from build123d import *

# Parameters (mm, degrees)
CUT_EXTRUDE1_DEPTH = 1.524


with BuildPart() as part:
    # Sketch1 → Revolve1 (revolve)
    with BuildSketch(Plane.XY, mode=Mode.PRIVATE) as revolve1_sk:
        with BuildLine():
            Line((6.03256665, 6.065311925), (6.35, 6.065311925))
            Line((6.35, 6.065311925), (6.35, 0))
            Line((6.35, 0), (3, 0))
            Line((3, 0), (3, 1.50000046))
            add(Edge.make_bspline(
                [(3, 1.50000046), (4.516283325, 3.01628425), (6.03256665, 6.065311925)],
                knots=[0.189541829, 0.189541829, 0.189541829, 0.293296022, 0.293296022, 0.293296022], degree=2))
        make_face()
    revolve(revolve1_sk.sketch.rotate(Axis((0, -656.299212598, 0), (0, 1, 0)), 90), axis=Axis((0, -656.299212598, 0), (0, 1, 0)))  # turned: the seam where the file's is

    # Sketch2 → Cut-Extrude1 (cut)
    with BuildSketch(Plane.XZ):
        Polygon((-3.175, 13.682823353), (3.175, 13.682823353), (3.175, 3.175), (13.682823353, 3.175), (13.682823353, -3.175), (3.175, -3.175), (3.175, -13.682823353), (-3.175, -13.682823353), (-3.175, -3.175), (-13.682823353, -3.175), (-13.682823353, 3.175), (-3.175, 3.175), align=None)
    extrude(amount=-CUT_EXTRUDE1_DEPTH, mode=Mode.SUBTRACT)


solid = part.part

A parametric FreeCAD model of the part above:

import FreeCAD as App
import Part
import Sketcher

V = App.Vector
Q = App.Units.Quantity

doc = App.newDocument("Part")
body = doc.addObject("PartDesign::Body", "Body")

# Sketch on XY plane
sketch1 = body.newObject("Sketcher::SketchObject", "Sketch")
sketch1.AttachmentSupport = (doc.getObject("XY_Plane"), [""])
sketch1.MapMode = "FlatFace"
sketch1.addGeometry(Part.LineSegment(V(6.35, 6.065312, 0), V(6.032567, 6.065312, 0)), False)
sketch1.addGeometry(Part.BSplineCurve([V(3, 1.5, 0), V(4.516283, 3.016284, 0), V(6.032567, 6.065312, 0)], [3, 3], [0.189541829, 0.293296022], False, 2, [1, 1, 1], False), False)
sketch1.addGeometry(Part.LineSegment(V(3, 1.5, 0), V(3, 0, 0)), False)
sketch1.addGeometry(Part.LineSegment(V(3, 0, 0), V(6.35, 0, 0)), False)
sketch1.addGeometry(Part.LineSegment(V(6.35, 0, 0), V(6.35, 6.065312, 0)), False)
sketch1.addConstraint(Sketcher.Constraint("Block", 1))
sketch1.addConstraint(Sketcher.Constraint("Coincident", 0, 2, 1, 2))
sketch1.addConstraint(Sketcher.Constraint("Coincident", 1, 1, 2, 1))
sketch1.addConstraint(Sketcher.Constraint("Coincident", 2, 2, 3, 1))
sketch1.addConstraint(Sketcher.Constraint("Coincident", 3, 2, 4, 1))
sketch1.addConstraint(Sketcher.Constraint("Coincident", 4, 2, 0, 1))
sketch1.addConstraint(Sketcher.Constraint("Horizontal", 0))
sketch1.addConstraint(Sketcher.Constraint("Vertical", 2))
sketch1.addConstraint(Sketcher.Constraint("Horizontal", 3))
sketch1.addConstraint(Sketcher.Constraint("Vertical", 4))
sketch1.addConstraint(Sketcher.Constraint("PointOnObject", 2, 2, -1))
sketch1.addConstraint(Sketcher.Constraint("DistanceX", -1, 1, 3, 2, Q("0.25 in")))
revolution = body.newObject("PartDesign::Revolution", "Revolution")
revolution.Profile = sketch1
revolution.ReferenceAxis = (sketch1, ["V_Axis"])
revolution.Angle = 360

# Sketch on XZ plane
sketch2 = body.newObject("Sketcher::SketchObject", "Sketch001")
sketch2.AttachmentSupport = (doc.getObject("XZ_Plane"), [""])
sketch2.MapMode = "FlatFace"
sketch2.addGeometry(Part.LineSegment(V(3.175, 13.682823, 0), V(-3.175, 13.682823, 0)), False)
sketch2.addGeometry(Part.LineSegment(V(-3.175, 13.682823, 0), V(-3.175, 3.175, 0)), False)
sketch2.addGeometry(Part.LineSegment(V(-3.175, 3.175, 0), V(-13.682823, 3.175, 0)), False)
sketch2.addGeometry(Part.LineSegment(V(-13.682823, 3.175, 0), V(-13.682823, -3.175, 0)), False)
sketch2.addGeometry(Part.LineSegment(V(-13.682823, -3.175, 0), V(-3.175, -3.175, 0)), False)
sketch2.addGeometry(Part.LineSegment(V(-3.175, -3.175, 0), V(-3.175, -13.682823, 0)), False)
sketch2.addGeometry(Part.LineSegment(V(-3.175, -13.682823, 0), V(3.175, -13.682823, 0)), False)
sketch2.addGeometry(Part.LineSegment(V(3.175, -13.682823, 0), V(3.175, -3.175, 0)), False)
sketch2.addGeometry(Part.LineSegment(V(3.175, -3.175, 0), V(13.682823, -3.175, 0)), False)
sketch2.addGeometry(Part.LineSegment(V(13.682823, -3.175, 0), V(13.682823, 3.175, 0)), False)
sketch2.addGeometry(Part.LineSegment(V(13.682823, 3.175, 0), V(3.175, 3.175, 0)), False)
sketch2.addGeometry(Part.LineSegment(V(3.175, 3.175, 0), V(3.175, 13.682823, 0)), False)
sketch2.addConstraint(Sketcher.Constraint("Coincident", 0, 2, 1, 1))
sketch2.addConstraint(Sketcher.Constraint("Coincident", 1, 2, 2, 1))
sketch2.addConstraint(Sketcher.Constraint("Coincident", 2, 2, 3, 1))
sketch2.addConstraint(Sketcher.Constraint("Coincident", 3, 2, 4, 1))
sketch2.addConstraint(Sketcher.Constraint("Coincident", 4, 2, 5, 1))
sketch2.addConstraint(Sketcher.Constraint("Coincident", 5, 2, 6, 1))
sketch2.addConstraint(Sketcher.Constraint("Coincident", 6, 2, 7, 1))
sketch2.addConstraint(Sketcher.Constraint("Coincident", 7, 2, 8, 1))
sketch2.addConstraint(Sketcher.Constraint("Coincident", 8, 2, 9, 1))
sketch2.addConstraint(Sketcher.Constraint("Coincident", 9, 2, 10, 1))
sketch2.addConstraint(Sketcher.Constraint("Coincident", 10, 2, 11, 1))
sketch2.addConstraint(Sketcher.Constraint("Coincident", 11, 2, 0, 1))
sketch2.addConstraint(Sketcher.Constraint("Horizontal", 0))
sketch2.addConstraint(Sketcher.Constraint("Vertical", 1))
sketch2.addConstraint(Sketcher.Constraint("Horizontal", 2))
sketch2.addConstraint(Sketcher.Constraint("Vertical", 3))
sketch2.addConstraint(Sketcher.Constraint("Horizontal", 4))
sketch2.addConstraint(Sketcher.Constraint("Vertical", 5))
sketch2.addConstraint(Sketcher.Constraint("Horizontal", 6))
sketch2.addConstraint(Sketcher.Constraint("Vertical", 7))
sketch2.addConstraint(Sketcher.Constraint("Horizontal", 8))
sketch2.addConstraint(Sketcher.Constraint("Vertical", 9))
sketch2.addConstraint(Sketcher.Constraint("Horizontal", 10))
sketch2.addConstraint(Sketcher.Constraint("Vertical", 11))
sketch2.addConstraint(Sketcher.Constraint("Symmetric", 0, 2, 6, 2, -1, 1))
sketch2.addConstraint(Sketcher.Constraint("Symmetric", 2, 2, 8, 2, -1, 1))
sketch2.addConstraint(Sketcher.Constraint("Symmetric", 4, 2, 10, 2, -1, 1))
sketch2.addConstraint(Sketcher.Constraint("Symmetric", 4, 2, 7, 2, -2))
sketch2.addConstraint(Sketcher.Constraint("Equal", 10, 1))
sketch2.addConstraint(Sketcher.Constraint("Equal", 6, 3))
sketch2.addConstraint(Sketcher.Constraint("DistanceX", 0, 2, 0, 1, Q("0.25 in")))
sketch2.addConstraint(Sketcher.Constraint("DistanceX", 2, 2, 2, 1, Q("10.507823 mm")))
pocket1 = body.newObject("PartDesign::Pocket", "Pocket")
pocket1.Profile = sketch2
pocket1.Length = Q("0.06 in")

doc.recompute()
